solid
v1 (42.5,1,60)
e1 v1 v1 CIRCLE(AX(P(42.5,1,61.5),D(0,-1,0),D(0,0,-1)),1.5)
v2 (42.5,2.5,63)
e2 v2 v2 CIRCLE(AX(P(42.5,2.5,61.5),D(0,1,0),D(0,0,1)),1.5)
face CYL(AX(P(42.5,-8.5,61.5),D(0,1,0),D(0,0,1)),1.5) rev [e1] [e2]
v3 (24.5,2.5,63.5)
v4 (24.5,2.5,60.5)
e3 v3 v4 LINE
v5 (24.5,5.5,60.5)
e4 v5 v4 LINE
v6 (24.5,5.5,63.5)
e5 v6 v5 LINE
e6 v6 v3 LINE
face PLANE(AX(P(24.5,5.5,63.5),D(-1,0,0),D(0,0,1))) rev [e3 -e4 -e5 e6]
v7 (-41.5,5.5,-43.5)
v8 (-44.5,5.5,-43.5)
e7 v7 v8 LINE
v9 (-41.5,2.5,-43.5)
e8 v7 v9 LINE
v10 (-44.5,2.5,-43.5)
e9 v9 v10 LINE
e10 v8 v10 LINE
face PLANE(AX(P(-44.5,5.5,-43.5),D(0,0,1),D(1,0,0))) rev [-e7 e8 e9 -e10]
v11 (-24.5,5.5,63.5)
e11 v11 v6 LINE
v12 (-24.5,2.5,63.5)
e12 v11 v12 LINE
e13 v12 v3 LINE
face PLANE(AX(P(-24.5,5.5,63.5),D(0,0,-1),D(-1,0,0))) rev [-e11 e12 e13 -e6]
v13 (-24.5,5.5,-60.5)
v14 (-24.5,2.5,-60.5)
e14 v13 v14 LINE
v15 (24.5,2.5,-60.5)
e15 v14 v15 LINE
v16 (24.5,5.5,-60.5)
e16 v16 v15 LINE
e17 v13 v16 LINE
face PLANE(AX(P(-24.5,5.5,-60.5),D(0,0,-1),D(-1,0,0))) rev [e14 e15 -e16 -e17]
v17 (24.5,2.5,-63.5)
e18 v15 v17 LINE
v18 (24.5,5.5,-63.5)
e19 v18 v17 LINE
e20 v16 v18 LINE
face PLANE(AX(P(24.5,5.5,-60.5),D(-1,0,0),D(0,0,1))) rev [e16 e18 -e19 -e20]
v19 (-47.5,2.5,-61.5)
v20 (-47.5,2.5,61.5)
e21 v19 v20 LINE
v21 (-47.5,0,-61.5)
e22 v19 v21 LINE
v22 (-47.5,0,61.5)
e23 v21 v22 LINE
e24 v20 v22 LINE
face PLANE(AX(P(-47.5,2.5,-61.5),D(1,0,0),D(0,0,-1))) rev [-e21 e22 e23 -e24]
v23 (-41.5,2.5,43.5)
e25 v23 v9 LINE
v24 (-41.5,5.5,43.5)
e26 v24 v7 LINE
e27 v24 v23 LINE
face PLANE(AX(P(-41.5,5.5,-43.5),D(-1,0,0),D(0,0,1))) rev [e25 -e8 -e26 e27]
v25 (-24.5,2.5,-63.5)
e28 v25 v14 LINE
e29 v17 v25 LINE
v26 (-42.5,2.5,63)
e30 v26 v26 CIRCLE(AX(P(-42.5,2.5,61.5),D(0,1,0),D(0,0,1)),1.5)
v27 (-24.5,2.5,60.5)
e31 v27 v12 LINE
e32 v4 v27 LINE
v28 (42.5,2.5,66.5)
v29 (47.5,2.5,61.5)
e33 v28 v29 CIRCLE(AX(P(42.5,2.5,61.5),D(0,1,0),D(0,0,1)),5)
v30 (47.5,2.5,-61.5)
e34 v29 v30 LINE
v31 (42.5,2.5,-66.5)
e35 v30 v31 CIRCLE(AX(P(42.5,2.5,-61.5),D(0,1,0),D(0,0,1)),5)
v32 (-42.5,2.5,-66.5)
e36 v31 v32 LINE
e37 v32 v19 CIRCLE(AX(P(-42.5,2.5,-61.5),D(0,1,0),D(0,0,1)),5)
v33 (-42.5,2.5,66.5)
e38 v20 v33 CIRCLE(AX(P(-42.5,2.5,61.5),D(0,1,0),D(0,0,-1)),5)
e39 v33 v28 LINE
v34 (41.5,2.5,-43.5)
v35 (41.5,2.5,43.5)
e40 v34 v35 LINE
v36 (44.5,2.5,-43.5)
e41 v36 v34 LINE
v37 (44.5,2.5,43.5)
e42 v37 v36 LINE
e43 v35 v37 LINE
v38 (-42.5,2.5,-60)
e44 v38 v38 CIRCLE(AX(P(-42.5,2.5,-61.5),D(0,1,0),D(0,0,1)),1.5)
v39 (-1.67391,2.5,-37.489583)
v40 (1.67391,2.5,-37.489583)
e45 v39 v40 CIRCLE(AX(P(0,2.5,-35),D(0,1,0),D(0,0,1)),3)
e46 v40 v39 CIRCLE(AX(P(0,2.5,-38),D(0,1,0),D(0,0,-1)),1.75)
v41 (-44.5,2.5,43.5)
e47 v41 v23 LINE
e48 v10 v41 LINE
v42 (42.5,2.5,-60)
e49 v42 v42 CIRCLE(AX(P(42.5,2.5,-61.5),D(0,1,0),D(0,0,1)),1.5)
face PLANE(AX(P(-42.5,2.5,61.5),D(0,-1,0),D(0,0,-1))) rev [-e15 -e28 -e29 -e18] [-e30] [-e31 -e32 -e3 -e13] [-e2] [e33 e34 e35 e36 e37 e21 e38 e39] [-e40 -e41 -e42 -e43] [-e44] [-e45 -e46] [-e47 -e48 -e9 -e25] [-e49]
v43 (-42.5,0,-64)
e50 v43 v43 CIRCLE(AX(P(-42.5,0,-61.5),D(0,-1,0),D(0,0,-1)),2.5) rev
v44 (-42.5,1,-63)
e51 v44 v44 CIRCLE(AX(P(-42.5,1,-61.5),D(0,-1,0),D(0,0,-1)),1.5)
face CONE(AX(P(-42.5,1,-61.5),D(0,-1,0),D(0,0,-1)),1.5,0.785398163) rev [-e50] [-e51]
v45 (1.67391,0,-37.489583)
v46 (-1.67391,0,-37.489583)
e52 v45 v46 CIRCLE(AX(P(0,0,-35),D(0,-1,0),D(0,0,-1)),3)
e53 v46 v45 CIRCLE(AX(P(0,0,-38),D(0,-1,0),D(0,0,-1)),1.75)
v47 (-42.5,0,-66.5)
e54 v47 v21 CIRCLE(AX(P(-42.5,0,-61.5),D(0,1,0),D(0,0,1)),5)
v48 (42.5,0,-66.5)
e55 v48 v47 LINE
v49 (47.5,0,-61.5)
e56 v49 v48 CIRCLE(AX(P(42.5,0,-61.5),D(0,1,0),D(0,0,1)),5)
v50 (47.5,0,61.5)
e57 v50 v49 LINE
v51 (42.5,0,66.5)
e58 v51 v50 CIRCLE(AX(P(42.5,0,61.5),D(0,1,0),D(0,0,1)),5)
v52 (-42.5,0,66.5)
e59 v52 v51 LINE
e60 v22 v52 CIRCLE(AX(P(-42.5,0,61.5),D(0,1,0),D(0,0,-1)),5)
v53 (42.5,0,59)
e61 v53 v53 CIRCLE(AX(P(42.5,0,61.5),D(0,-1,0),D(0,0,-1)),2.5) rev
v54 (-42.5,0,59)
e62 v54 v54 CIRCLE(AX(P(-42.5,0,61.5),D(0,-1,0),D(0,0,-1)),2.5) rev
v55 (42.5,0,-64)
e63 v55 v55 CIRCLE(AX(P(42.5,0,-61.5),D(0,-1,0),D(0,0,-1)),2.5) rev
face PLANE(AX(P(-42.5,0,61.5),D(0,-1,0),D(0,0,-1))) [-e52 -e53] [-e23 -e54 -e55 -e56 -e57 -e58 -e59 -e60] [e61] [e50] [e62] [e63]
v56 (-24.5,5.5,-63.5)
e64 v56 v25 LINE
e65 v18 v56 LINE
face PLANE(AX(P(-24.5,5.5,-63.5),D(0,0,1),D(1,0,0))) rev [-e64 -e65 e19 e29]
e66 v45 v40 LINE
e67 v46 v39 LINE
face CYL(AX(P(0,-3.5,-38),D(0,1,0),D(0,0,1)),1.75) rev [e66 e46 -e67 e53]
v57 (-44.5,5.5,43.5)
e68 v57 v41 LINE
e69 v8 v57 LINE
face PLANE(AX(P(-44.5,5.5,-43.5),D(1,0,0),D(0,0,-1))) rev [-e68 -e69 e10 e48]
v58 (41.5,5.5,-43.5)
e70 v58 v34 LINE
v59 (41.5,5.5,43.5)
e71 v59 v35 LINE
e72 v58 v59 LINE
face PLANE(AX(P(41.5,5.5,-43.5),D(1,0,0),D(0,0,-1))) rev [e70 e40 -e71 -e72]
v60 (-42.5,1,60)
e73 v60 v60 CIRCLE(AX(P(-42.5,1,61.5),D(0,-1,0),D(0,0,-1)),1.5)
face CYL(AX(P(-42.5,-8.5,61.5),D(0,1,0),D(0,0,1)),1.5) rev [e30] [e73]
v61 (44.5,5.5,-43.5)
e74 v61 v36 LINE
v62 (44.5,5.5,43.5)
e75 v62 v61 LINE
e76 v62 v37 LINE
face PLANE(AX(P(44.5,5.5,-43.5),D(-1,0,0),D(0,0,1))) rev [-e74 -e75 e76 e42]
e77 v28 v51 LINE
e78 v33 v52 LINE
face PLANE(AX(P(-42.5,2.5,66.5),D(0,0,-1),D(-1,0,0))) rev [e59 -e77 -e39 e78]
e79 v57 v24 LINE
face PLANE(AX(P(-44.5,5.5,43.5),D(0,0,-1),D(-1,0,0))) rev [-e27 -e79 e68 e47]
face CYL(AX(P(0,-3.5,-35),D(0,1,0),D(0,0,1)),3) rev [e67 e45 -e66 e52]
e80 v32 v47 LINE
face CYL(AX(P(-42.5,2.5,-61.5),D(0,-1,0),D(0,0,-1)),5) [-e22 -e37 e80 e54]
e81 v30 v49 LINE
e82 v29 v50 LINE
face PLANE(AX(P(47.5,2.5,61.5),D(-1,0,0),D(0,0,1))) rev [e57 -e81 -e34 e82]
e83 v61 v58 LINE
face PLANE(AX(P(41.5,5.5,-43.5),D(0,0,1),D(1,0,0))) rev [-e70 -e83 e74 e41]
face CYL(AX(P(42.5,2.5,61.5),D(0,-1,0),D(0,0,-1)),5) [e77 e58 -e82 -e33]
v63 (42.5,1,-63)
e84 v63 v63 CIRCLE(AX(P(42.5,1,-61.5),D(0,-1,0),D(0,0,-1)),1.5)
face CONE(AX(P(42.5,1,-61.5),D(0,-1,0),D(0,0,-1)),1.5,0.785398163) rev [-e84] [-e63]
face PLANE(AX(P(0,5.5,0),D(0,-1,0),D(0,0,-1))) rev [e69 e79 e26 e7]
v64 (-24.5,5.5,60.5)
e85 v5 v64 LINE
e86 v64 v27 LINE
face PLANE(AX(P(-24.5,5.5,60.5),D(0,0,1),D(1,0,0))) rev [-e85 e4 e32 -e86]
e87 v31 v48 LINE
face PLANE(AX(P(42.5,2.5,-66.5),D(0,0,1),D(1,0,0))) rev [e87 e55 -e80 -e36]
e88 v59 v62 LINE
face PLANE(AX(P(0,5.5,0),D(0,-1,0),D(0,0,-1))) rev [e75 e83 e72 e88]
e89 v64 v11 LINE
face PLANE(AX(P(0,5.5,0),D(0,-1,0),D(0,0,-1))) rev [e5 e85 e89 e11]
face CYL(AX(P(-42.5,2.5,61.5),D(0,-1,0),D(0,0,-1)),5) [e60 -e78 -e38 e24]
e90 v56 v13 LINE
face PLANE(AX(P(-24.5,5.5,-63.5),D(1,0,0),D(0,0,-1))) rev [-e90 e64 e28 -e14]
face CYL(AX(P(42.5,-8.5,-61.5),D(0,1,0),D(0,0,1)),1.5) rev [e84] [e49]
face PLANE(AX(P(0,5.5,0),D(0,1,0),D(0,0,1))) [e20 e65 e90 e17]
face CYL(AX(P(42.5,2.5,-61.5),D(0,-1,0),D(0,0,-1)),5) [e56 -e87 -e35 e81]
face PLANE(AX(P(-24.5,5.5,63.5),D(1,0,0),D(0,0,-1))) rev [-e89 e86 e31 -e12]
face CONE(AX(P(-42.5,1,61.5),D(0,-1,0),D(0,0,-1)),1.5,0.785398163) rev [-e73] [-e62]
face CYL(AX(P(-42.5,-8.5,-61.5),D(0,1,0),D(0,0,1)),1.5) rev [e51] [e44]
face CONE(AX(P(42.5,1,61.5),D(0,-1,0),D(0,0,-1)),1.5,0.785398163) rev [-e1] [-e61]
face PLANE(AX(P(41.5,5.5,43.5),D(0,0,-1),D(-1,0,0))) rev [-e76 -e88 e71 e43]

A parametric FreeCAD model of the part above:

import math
import FreeCAD as App
import Part
import Sketcher
Q = App.Units.Quantity


def edges_at(feature, points):
    """Names of the edges that pass closest to the given points."""
    edges = feature.Shape.Edges
    near = lambda p: min(range(len(edges)), key=lambda i: edges[i].distToShape(Part.Vertex(*p))[0])
    return sorted({f"Edge{near(p) + 1}" for p in points})


def add_polygon(sketch, points):
    """Adds a closed chain of lines whose ends are joined by coincident constraints."""
    first, n = sketch.GeometryCount, len(points)
    for a, b in zip(points, points[1:] + points[:1]):
        sketch.addGeometry(Part.LineSegment(App.Vector(*a, 0), App.Vector(*b, 0)), False)
    for i in range(n):
        sketch.addConstraint(Sketcher.Constraint("Coincident", first + i, 2, first + (i + 1) % n, 1))

doc = App.newDocument("Part")
body = doc.addObject("PartDesign::Body", "Body")

sketch1 = doc.addObject("Sketcher::SketchObject", "Sketch")
body.addObject(sketch1)
sketch1.AttachmentSupport = (doc.XZ_Plane, [""])
sketch1.MapMode = "FlatFace"
sketch1.addGeometry([
    Part.LineSegment(App.Vector(-42.5, 66.5, 0), App.Vector(42.5, 66.5, 0)),
    Part.ArcOfCircle(Part.Circle(App.Vector(42.5, 61.5, 0), App.Vector(0, 0, 1), 5), math.radians(0), math.radians(90)),
    Part.LineSegment(App.Vector(47.5, 61.5, 0), App.Vector(47.5, -61.5, 0)),
    Part.ArcOfCircle(Part.Circle(App.Vector(42.5, -61.5, 0), App.Vector(0, 0, 1), 5), math.radians(-90), math.radians(0)),
    Part.LineSegment(App.Vector(42.5, -66.5, 0), App.Vector(-42.5, -66.5, 0)),
    Part.ArcOfCircle(Part.Circle(App.Vector(-42.5, -61.5, 0), App.Vector(0, 0, 1), 5), math.radians(180), math.radians(270)),
    Part.LineSegment(App.Vector(-47.5, -61.5, 0), App.Vector(-47.5, 61.5, 0)),
    Part.ArcOfCircle(Part.Circle(App.Vector(-42.5, 61.5, 0), App.Vector(0, 0, 1), 5), math.radians(90), math.radians(180)),
], False)
sketch1.addConstraint([
    Sketcher.Constraint("Tangent", 0, 2, 1, 2),
    Sketcher.Constraint("Tangent", 1, 1, 2, 1),
    Sketcher.Constraint("Tangent", 2, 2, 3, 2),
    Sketcher.Constraint("Tangent", 3, 1, 4, 1),
    Sketcher.Constraint("Tangent", 4, 2, 5, 2),
    Sketcher.Constraint("Tangent", 5, 1, 6, 1),
    Sketcher.Constraint("Tangent", 6, 2, 7, 2),
    Sketcher.Constraint("Tangent", 7, 1, 0, 1),
    Sketcher.Constraint("Horizontal", 0),
    Sketcher.Constraint("Vertical", 2),
    Sketcher.Constraint("Horizontal", 4),
    Sketcher.Constraint("Vertical", 6),
    Sketcher.Constraint("Equal", 1, 3),
    Sketcher.Constraint("Equal", 3, 5),
    Sketcher.Constraint("Equal", 5, 7),
    Sketcher.Constraint("Symmetric", 1, 3, 5, 3, -1, 1),
    Sketcher.Constraint("Radius", 1, Q("5 mm")),
    Sketcher.Constraint("DistanceX", 0, 1, 0, 2, Q("85 mm")),
    Sketcher.Constraint("DistanceY", 2, 2, 2, 1, Q("123 mm")),
])
pad1 = doc.addObject("PartDesign::Pad", "Pad")
body.addObject(pad1)
pad1.Profile = sketch1
pad1.Length = 2.5
pad1.Reversed = True

sketch2 = doc.addObject("Sketcher::SketchObject", "Sketch001")
body.addObject(sketch2)
sketch2.AttachmentSupport = (doc.XZ_Plane, [""])
sketch2.MapMode = "FlatFace"
sketch2.AttachmentOffset = App.Placement(App.Vector(0, 0, -2.5), App.Rotation())
sketch2.addGeometry([
    Part.Circle(App.Vector(-42.5, -61.5, 0), App.Vector(0, 0, 1), 1.5),
    Part.Circle(App.Vector(42.5, -61.5, 0), App.Vector(0, 0, 1), 1.5),
    Part.Circle(App.Vector(42.5, 61.5, 0), App.Vector(0, 0, 1), 1.5),
    Part.Circle(App.Vector(-42.5, 61.5, 0), App.Vector(0, 0, 1), 1.5),
], False)
sketch2.addConstraint([
    Sketcher.Constraint("Equal", 0, 1),
    Sketcher.Constraint("Equal", 1, 2),
    Sketcher.Constraint("Equal", 2, 3),
    Sketcher.Constraint("Symmetric", 0, 3, 2, 3, -1, 1),
    Sketcher.Constraint("Symmetric", 1, 3, 3, 3, -1, 1),
    Sketcher.Constraint("Symmetric", 0, 3, 1, 3, -2),
    Sketcher.Constraint("Diameter", 0, Q("3 mm")),
    Sketcher.Constraint("DistanceX", 0, 3, 1, 3, Q("85 mm")),
    Sketcher.Constraint("DistanceY", 1, 3, 2, 3, Q("123 mm")),
])
pocket1 = doc.addObject("PartDesign::Pocket", "Pocket")
body.addObject(pocket1)
pocket1.Profile = sketch2
pocket1.Length = 11
pocket1.Reversed = True

sketch3 = doc.addObject("Sketcher::SketchObject", "Sketch002")
body.addObject(sketch3)
sketch3.AttachmentSupport = (doc.XZ_Plane, [""])
sketch3.MapMode = "FlatFace"
sketch3.AttachmentOffset = App.Placement(App.Vector(0, 0, -2.5), App.Rotation())
add_polygon(sketch3, [(-24.5, -63.5), (-24.5, -60.5), (24.5, -60.5), (24.5, -63.5)])
add_polygon(sketch3, [(-24.5, 60.5), (-24.5, 63.5), (24.5, 63.5), (24.5, 60.5)])
add_polygon(sketch3, [(-44.5, -43.5), (-44.5, 43.5), (-41.5, 43.5), (-41.5, -43.5)])
add_polygon(sketch3, [(41.5, -43.5), (41.5, 43.5), (44.5, 43.5), (44.5, -43.5)])
sketch3.addConstraint([
    Sketcher.Constraint("Vertical", 0),
    Sketcher.Constraint("Horizontal", 1),
    Sketcher.Constraint("Vertical", 2),
    Sketcher.Constraint("Horizontal", 3),
    Sketcher.Constraint("Vertical", 4),
    Sketcher.Constraint("Horizontal", 5),
    Sketcher.Constraint("Vertical", 6),
    Sketcher.Constraint("Horizontal", 7),
    Sketcher.Constraint("Vertical", 8),
    Sketcher.Constraint("Horizontal", 9),
    Sketcher.Constraint("Vertical", 10),
    Sketcher.Constraint("Horizontal", 11),
    Sketcher.Constraint("Vertical", 12),
    Sketcher.Constraint("Horizontal", 13),
    Sketcher.Constraint("Vertical", 14),
    Sketcher.Constraint("Horizontal", 15),
    Sketcher.Constraint("Symmetric", 2, 2, 4, 2, -1, 1),
    Sketcher.Constraint("Symmetric", 0, 2, 6, 2, -1, 1),
    Sketcher.Constraint("Symmetric", 10, 2, 12, 2, -1, 1),
    Sketcher.Constraint("Symmetric", 8, 2, 14, 2, -1, 1),
    Sketcher.Constraint("Horizontal", 9, 2, 12, 2),
    Sketcher.Constraint("Vertical", 3, 2, 4, 2),
    Sketcher.Constraint("Equal", 15, 0),
    Sketcher.Constraint("DistanceX", 1, 1, 1, 2, Q("49 mm")),
    Sketcher.Constraint("DistanceX", 9, 1, 9, 2, Q("3 mm")),
    Sketcher.Constraint("DistanceY", 8, 1, 8, 2, Q("87 mm")),
    Sketcher.Constraint("DistanceY", 0, 2, 4, 2, Q("124 mm")),
    Sketcher.Constraint("DistanceX", 8, 2, 7, 2, Q("20 mm")),
])
pad2 = doc.addObject("PartDesign::Pad", "Pad001")
body.addObject(pad2)
pad2.Profile = sketch3
pad2.Length = 3
pad2.Reversed = True

sketch4 = doc.addObject("Sketcher::SketchObject", "Sketch003")
body.addObject(sketch4)
sketch4.AttachmentSupport = (doc.XZ_Plane, [""])
sketch4.MapMode = "FlatFace"
sketch4.AttachmentOffset = App.Placement(App.Vector(0, 0, -2.5), App.Rotation())
sketch4.addGeometry([
    Part.ArcOfCircle(Part.Circle(App.Vector(0, -38, 0), App.Vector(0, 0, 1), 1.75), math.radians(163.042237), math.radians(376.957763)),
    Part.ArcOfCircle(Part.Circle(App.Vector(0, -35, 0), App.Vector(0, 0, 1), 3), math.radians(-56.084473), math.radians(236.084473)),
], False)
sketch4.addConstraint([
    Sketcher.Constraint("Coincident", 0, 1, 1, 2),
    Sketcher.Constraint("Coincident", 1, 1, 0, 2),
    Sketcher.Constraint("Symmetric", 0, 1, 1, 1, -2),
    Sketcher.Constraint("Radius", 1, Q("3 mm")),
    Sketcher.Constraint("Radius", 0, Q("1.75 mm")),
    Sketcher.Constraint("DistanceY", 0, 3, -1, 1, Q("38 mm")),
    Sketcher.Constraint("DistanceY", 1, 3, -1, 1, Q("35 mm")),
])
pocket2 = doc.addObject("PartDesign::Pocket", "Pocket001")
body.addObject(pocket2)
pocket2.Profile = sketch4
pocket2.Length = 6
pocket2.Reversed = True
doc.recompute()

chamfer = doc.addObject("PartDesign::Chamfer", "Chamfer")
body.addObject(chamfer)
chamfer.Base = (pocket2, edges_at(pocket2, [
    (-44, 0, 61.5),
    (41, 0, 61.5),
    (41, 0, -61.5),
    (-44, 0, -61.5),
]))
chamfer.Size = 1

doc.recompute()
